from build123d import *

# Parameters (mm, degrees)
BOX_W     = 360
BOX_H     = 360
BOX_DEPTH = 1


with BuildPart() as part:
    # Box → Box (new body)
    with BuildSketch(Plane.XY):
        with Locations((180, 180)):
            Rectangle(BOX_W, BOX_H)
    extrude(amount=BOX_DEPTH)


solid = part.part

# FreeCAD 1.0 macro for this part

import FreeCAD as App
import Part
import Sketcher
from FreeCAD import Vector
Q = App.Units.Quantity

doc = App.newDocument("Part")
body = doc.addObject("PartDesign::Body", "Body")

sketch1 = body.newObject("Sketcher::SketchObject", "Sketch")
sketch1.AttachmentSupport = (doc.getObject("XY_Plane"), [""])
sketch1.MapMode = "FlatFace"
sketch1.addGeometry(Part.LineSegment(Vector(0, 360, 0), Vector(0, 0, 0)), False)
sketch1.addGeometry(Part.LineSegment(Vector(0, 0, 0), Vector(360, 0, 0)), False)
sketch1.addGeometry(Part.LineSegment(Vector(360, 0, 0), Vector(360, 360, 0)), False)
sketch1.addGeometry(Part.LineSegment(Vector(360, 360, 0), Vector(0, 360, 0)), False)
sketch1.addConstraint(Sketcher.Constraint("Coincident", 0, 2, 1, 1))
sketch1.addConstraint(Sketcher.Constraint("Coincident", 1, 2, 2, 1))
sketch1.addConstraint(Sketcher.Constraint("Coincident", 2, 2, 3, 1))
sketch1.addConstraint(Sketcher.Constraint("Coincident", 3, 2, 0, 1))
sketch1.addConstraint(Sketcher.Constraint("Vertical", 0))
sketch1.addConstraint(Sketcher.Constraint("Horizontal", 1))
sketch1.addConstraint(Sketcher.Constraint("Vertical", 2))
sketch1.addConstraint(Sketcher.Constraint("Horizontal", 3))
sketch1.addConstraint(Sketcher.Constraint("Coincident", 0, 2, -1, 1))
sketch1.addConstraint(Sketcher.Constraint("Equal", 3, 0))
sketch1.addConstraint(Sketcher.Constraint("DistanceX", 1, 1, 1, 2, Q("360 mm")))
pad1 = body.newObject("PartDesign::Pad", "Pad")
pad1.Profile = sketch1
pad1.Length = 1

doc.recompute()
